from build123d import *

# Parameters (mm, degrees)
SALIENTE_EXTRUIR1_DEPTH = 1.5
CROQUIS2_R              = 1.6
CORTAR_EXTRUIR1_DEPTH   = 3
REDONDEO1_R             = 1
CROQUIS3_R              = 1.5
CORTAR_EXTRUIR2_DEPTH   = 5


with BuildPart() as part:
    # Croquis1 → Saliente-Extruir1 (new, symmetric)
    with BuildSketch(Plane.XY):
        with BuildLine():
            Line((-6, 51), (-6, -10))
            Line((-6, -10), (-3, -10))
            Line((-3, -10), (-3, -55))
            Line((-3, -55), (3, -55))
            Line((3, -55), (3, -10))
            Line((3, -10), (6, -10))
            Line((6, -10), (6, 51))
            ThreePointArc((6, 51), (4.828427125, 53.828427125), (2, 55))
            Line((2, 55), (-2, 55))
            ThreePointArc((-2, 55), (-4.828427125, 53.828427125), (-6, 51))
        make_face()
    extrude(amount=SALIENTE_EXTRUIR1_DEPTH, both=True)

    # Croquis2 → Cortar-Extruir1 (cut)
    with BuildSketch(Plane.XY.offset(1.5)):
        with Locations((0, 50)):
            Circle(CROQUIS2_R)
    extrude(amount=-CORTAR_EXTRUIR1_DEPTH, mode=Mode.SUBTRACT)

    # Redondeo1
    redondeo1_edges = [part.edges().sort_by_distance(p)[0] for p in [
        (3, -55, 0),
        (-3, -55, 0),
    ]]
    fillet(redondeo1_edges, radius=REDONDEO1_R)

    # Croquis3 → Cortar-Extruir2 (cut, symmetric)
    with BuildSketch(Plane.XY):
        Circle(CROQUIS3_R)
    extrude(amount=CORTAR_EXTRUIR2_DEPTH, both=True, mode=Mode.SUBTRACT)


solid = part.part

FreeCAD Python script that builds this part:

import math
import FreeCAD as App
import Part
import Sketcher
from FreeCAD import Vector
Q = App.Units.Quantity


def edges_at(feature, points):
    """Names of the edges that pass closest to the given points."""
    edges = feature.Shape.Edges
    near = lambda p: min(range(len(edges)), key=lambda i: edges[i].distToShape(Part.Vertex(*p))[0])
    return sorted({f"Edge{near(p) + 1}" for p in points})

doc = App.newDocument("Part")
params = doc.addObject("Spreadsheet::Sheet", "Params")
for row, (alias, value) in enumerate([
    ("sketch1_radius", "4 mm"),
    ("sketch1_width", "3 mm"),
    ("sketch1_width2", "6 mm"),
    ("sketch1_height", "61 mm"),
    ("sketch1_height2", "45 mm"),
    ("pad1_length", "3 mm"),
    ("sketch2_diameter", "3.2 mm"),
    ("pocket1_length", "3 mm"),
    ("fillet_radius", "1 mm"),
    ("sketch3_diameter", "3 mm"),
    ("pocket2_length", "10 mm"),
], start=1):
    params.set(f"A{row}", alias)
    params.set(f"B{row}", "=" + value)
    params.setAlias(f"B{row}", alias)

body = doc.addObject("PartDesign::Body", "Body")

# Sketch on XY plane
sketch1 = doc.addObject("Sketcher::SketchObject", "Sketch")
body.addObject(sketch1)
sketch1.AttachmentSupport = (doc.XY_Plane, [""])
sketch1.MapMode = "FlatFace"
sketch1.addGeometry(Part.LineSegment(Vector(-6, 51, 0), Vector(-6, -10, 0)), False)
sketch1.addGeometry(Part.LineSegment(Vector(-6, -10, 0), Vector(-3, -10, 0)), False)
sketch1.addGeometry(Part.LineSegment(Vector(-3, -10, 0), Vector(-3, -55, 0)), False)
sketch1.addGeometry(Part.LineSegment(Vector(-3, -55, 0), Vector(3, -55, 0)), False)
sketch1.addGeometry(Part.LineSegment(Vector(3, -55, 0), Vector(3, -10, 0)), False)
sketch1.addGeometry(Part.LineSegment(Vector(3, -10, 0), Vector(6, -10, 0)), False)
sketch1.addGeometry(Part.LineSegment(Vector(6, -10, 0), Vector(6, 51, 0)), False)
sketch1.addGeometry(Part.ArcOfCircle(Part.Circle(Vector(2, 51, 0), Vector(0, 0, 1), 4), math.radians(0), math.radians(90)), False)
sketch1.addGeometry(Part.LineSegment(Vector(2, 55, 0), Vector(-2, 55, 0)), False)
sketch1.addGeometry(Part.ArcOfCircle(Part.Circle(Vector(-2, 51, 0), Vector(0, 0, 1), 4), math.radians(90), math.radians(180)), False)
sketch1.addConstraint(Sketcher.Constraint("Coincident", 0, 2, 1, 1))
sketch1.addConstraint(Sketcher.Constraint("Coincident", 1, 2, 2, 1))
sketch1.addConstraint(Sketcher.Constraint("Coincident", 2, 2, 3, 1))
sketch1.addConstraint(Sketcher.Constraint("Coincident", 3, 2, 4, 1))
sketch1.addConstraint(Sketcher.Constraint("Coincident", 4, 2, 5, 1))
sketch1.addConstraint(Sketcher.Constraint("Coincident", 5, 2, 6, 1))
sketch1.addConstraint(Sketcher.Constraint("Tangent", 6, 2, 7, 1))
sketch1.addConstraint(Sketcher.Constraint("Tangent", 7, 2, 8, 1))
sketch1.addConstraint(Sketcher.Constraint("Tangent", 8, 2, 9, 1))
sketch1.addConstraint(Sketcher.Constraint("Tangent", 9, 2, 0, 1))
sketch1.addConstraint(Sketcher.Constraint("Vertical", 0))
sketch1.addConstraint(Sketcher.Constraint("Horizontal", 1))
sketch1.addConstraint(Sketcher.Constraint("Vertical", 2))
sketch1.addConstraint(Sketcher.Constraint("Horizontal", 3))
sketch1.addConstraint(Sketcher.Constraint("Vertical", 4))
sketch1.addConstraint(Sketcher.Constraint("Horizontal", 5))
sketch1.addConstraint(Sketcher.Constraint("Vertical", 6))
sketch1.addConstraint(Sketcher.Constraint("Horizontal", 8))
sketch1.addConstraint(Sketcher.Constraint("Equal", 7, 9))
sketch1.addConstraint(Sketcher.Constraint("Symmetric", 1, 2, 4, 2, -2))
sketch1.addConstraint(Sketcher.Constraint("Equal", 1, 5))
sketch1.addConstraint(Sketcher.Constraint("Radius", 7, Q("4 mm")))
sketch1.addConstraint(Sketcher.Constraint("DistanceX", 1, 1, 1, 2, Q("3 mm")))
sketch1.addConstraint(Sketcher.Constraint("DistanceX", 3, 1, 3, 2, Q("6 mm")))
sketch1.addConstraint(Sketcher.Constraint("DistanceY", 0, 2, 0, 1, Q("61 mm")))
sketch1.addConstraint(Sketcher.Constraint("DistanceY", 2, 2, 2, 1, Q("45 mm")))
sketch1.addConstraint(Sketcher.Constraint("DistanceY", -1, 1, 7, 3, Q("51 mm")))
sketch1.setExpression("Constraints[21]", "Params.sketch1_radius")
sketch1.setExpression("Constraints[22]", "Params.sketch1_width")
sketch1.setExpression("Constraints[23]", "Params.sketch1_width2")
sketch1.setExpression("Constraints[24]", "Params.sketch1_height")
sketch1.setExpression("Constraints[25]", "Params.sketch1_height2")
pad1 = doc.addObject("PartDesign::Pad", "Pad")
body.addObject(pad1)
pad1.Profile = sketch1
pad1.setExpression("Length", "Params.pad1_length")
pad1.Midplane = True

# Sketch on XY plane
sketch2 = doc.addObject("Sketcher::SketchObject", "Sketch001")
body.addObject(sketch2)
sketch2.AttachmentSupport = (doc.XY_Plane, [""])
sketch2.MapMode = "FlatFace"
sketch2.AttachmentOffset = App.Placement(Vector(0, 0, 1.5), App.Rotation())
sketch2.addGeometry(Part.Circle(Vector(0, 50, 0), Vector(0, 0, 1), 1.6), False)
sketch2.addConstraint(Sketcher.Constraint("PointOnObject", 0, 3, -2))
sketch2.addConstraint(Sketcher.Constraint("Diameter", 0, Q("3.2 mm")))
sketch2.addConstraint(Sketcher.Constraint("DistanceY", -1, 1, 0, 3, Q("50 mm")))
sketch2.setExpression("Constraints[1]", "Params.sketch2_diameter")
pocket1 = doc.addObject("PartDesign::Pocket", "Pocket")
body.addObject(pocket1)
pocket1.Profile = sketch2
pocket1.setExpression("Length", "Params.pocket1_length")
doc.recompute()

fillet = doc.addObject("PartDesign::Fillet", "Fillet")
body.addObject(fillet)
fillet.Base = (pocket1, edges_at(pocket1, [(3, -55, 0), (-3, -55, 0)]))
fillet.setExpression("Radius", "Params.fillet_radius")

# Sketch on XY plane
sketch3 = doc.addObject("Sketcher::SketchObject", "Sketch002")
body.addObject(sketch3)
sketch3.AttachmentSupport = (doc.XY_Plane, [""])
sketch3.MapMode = "FlatFace"
sketch3.addGeometry(Part.Circle(Vector(0, 0, 0), Vector(0, 0, 1), 1.5), False)
sketch3.addConstraint(Sketcher.Constraint("Coincident", 0, 3, -1, 1))
sketch3.addConstraint(Sketcher.Constraint("Diameter", 0, Q("3 mm")))
sketch3.setExpression("Constraints[1]", "Params.sketch3_diameter")
pocket2 = doc.addObject("PartDesign::Pocket", "Pocket001")
body.addObject(pocket2)
pocket2.Profile = sketch3
pocket2.setExpression("Length", "Params.pocket2_length")
pocket2.Midplane = True

doc.recompute()
